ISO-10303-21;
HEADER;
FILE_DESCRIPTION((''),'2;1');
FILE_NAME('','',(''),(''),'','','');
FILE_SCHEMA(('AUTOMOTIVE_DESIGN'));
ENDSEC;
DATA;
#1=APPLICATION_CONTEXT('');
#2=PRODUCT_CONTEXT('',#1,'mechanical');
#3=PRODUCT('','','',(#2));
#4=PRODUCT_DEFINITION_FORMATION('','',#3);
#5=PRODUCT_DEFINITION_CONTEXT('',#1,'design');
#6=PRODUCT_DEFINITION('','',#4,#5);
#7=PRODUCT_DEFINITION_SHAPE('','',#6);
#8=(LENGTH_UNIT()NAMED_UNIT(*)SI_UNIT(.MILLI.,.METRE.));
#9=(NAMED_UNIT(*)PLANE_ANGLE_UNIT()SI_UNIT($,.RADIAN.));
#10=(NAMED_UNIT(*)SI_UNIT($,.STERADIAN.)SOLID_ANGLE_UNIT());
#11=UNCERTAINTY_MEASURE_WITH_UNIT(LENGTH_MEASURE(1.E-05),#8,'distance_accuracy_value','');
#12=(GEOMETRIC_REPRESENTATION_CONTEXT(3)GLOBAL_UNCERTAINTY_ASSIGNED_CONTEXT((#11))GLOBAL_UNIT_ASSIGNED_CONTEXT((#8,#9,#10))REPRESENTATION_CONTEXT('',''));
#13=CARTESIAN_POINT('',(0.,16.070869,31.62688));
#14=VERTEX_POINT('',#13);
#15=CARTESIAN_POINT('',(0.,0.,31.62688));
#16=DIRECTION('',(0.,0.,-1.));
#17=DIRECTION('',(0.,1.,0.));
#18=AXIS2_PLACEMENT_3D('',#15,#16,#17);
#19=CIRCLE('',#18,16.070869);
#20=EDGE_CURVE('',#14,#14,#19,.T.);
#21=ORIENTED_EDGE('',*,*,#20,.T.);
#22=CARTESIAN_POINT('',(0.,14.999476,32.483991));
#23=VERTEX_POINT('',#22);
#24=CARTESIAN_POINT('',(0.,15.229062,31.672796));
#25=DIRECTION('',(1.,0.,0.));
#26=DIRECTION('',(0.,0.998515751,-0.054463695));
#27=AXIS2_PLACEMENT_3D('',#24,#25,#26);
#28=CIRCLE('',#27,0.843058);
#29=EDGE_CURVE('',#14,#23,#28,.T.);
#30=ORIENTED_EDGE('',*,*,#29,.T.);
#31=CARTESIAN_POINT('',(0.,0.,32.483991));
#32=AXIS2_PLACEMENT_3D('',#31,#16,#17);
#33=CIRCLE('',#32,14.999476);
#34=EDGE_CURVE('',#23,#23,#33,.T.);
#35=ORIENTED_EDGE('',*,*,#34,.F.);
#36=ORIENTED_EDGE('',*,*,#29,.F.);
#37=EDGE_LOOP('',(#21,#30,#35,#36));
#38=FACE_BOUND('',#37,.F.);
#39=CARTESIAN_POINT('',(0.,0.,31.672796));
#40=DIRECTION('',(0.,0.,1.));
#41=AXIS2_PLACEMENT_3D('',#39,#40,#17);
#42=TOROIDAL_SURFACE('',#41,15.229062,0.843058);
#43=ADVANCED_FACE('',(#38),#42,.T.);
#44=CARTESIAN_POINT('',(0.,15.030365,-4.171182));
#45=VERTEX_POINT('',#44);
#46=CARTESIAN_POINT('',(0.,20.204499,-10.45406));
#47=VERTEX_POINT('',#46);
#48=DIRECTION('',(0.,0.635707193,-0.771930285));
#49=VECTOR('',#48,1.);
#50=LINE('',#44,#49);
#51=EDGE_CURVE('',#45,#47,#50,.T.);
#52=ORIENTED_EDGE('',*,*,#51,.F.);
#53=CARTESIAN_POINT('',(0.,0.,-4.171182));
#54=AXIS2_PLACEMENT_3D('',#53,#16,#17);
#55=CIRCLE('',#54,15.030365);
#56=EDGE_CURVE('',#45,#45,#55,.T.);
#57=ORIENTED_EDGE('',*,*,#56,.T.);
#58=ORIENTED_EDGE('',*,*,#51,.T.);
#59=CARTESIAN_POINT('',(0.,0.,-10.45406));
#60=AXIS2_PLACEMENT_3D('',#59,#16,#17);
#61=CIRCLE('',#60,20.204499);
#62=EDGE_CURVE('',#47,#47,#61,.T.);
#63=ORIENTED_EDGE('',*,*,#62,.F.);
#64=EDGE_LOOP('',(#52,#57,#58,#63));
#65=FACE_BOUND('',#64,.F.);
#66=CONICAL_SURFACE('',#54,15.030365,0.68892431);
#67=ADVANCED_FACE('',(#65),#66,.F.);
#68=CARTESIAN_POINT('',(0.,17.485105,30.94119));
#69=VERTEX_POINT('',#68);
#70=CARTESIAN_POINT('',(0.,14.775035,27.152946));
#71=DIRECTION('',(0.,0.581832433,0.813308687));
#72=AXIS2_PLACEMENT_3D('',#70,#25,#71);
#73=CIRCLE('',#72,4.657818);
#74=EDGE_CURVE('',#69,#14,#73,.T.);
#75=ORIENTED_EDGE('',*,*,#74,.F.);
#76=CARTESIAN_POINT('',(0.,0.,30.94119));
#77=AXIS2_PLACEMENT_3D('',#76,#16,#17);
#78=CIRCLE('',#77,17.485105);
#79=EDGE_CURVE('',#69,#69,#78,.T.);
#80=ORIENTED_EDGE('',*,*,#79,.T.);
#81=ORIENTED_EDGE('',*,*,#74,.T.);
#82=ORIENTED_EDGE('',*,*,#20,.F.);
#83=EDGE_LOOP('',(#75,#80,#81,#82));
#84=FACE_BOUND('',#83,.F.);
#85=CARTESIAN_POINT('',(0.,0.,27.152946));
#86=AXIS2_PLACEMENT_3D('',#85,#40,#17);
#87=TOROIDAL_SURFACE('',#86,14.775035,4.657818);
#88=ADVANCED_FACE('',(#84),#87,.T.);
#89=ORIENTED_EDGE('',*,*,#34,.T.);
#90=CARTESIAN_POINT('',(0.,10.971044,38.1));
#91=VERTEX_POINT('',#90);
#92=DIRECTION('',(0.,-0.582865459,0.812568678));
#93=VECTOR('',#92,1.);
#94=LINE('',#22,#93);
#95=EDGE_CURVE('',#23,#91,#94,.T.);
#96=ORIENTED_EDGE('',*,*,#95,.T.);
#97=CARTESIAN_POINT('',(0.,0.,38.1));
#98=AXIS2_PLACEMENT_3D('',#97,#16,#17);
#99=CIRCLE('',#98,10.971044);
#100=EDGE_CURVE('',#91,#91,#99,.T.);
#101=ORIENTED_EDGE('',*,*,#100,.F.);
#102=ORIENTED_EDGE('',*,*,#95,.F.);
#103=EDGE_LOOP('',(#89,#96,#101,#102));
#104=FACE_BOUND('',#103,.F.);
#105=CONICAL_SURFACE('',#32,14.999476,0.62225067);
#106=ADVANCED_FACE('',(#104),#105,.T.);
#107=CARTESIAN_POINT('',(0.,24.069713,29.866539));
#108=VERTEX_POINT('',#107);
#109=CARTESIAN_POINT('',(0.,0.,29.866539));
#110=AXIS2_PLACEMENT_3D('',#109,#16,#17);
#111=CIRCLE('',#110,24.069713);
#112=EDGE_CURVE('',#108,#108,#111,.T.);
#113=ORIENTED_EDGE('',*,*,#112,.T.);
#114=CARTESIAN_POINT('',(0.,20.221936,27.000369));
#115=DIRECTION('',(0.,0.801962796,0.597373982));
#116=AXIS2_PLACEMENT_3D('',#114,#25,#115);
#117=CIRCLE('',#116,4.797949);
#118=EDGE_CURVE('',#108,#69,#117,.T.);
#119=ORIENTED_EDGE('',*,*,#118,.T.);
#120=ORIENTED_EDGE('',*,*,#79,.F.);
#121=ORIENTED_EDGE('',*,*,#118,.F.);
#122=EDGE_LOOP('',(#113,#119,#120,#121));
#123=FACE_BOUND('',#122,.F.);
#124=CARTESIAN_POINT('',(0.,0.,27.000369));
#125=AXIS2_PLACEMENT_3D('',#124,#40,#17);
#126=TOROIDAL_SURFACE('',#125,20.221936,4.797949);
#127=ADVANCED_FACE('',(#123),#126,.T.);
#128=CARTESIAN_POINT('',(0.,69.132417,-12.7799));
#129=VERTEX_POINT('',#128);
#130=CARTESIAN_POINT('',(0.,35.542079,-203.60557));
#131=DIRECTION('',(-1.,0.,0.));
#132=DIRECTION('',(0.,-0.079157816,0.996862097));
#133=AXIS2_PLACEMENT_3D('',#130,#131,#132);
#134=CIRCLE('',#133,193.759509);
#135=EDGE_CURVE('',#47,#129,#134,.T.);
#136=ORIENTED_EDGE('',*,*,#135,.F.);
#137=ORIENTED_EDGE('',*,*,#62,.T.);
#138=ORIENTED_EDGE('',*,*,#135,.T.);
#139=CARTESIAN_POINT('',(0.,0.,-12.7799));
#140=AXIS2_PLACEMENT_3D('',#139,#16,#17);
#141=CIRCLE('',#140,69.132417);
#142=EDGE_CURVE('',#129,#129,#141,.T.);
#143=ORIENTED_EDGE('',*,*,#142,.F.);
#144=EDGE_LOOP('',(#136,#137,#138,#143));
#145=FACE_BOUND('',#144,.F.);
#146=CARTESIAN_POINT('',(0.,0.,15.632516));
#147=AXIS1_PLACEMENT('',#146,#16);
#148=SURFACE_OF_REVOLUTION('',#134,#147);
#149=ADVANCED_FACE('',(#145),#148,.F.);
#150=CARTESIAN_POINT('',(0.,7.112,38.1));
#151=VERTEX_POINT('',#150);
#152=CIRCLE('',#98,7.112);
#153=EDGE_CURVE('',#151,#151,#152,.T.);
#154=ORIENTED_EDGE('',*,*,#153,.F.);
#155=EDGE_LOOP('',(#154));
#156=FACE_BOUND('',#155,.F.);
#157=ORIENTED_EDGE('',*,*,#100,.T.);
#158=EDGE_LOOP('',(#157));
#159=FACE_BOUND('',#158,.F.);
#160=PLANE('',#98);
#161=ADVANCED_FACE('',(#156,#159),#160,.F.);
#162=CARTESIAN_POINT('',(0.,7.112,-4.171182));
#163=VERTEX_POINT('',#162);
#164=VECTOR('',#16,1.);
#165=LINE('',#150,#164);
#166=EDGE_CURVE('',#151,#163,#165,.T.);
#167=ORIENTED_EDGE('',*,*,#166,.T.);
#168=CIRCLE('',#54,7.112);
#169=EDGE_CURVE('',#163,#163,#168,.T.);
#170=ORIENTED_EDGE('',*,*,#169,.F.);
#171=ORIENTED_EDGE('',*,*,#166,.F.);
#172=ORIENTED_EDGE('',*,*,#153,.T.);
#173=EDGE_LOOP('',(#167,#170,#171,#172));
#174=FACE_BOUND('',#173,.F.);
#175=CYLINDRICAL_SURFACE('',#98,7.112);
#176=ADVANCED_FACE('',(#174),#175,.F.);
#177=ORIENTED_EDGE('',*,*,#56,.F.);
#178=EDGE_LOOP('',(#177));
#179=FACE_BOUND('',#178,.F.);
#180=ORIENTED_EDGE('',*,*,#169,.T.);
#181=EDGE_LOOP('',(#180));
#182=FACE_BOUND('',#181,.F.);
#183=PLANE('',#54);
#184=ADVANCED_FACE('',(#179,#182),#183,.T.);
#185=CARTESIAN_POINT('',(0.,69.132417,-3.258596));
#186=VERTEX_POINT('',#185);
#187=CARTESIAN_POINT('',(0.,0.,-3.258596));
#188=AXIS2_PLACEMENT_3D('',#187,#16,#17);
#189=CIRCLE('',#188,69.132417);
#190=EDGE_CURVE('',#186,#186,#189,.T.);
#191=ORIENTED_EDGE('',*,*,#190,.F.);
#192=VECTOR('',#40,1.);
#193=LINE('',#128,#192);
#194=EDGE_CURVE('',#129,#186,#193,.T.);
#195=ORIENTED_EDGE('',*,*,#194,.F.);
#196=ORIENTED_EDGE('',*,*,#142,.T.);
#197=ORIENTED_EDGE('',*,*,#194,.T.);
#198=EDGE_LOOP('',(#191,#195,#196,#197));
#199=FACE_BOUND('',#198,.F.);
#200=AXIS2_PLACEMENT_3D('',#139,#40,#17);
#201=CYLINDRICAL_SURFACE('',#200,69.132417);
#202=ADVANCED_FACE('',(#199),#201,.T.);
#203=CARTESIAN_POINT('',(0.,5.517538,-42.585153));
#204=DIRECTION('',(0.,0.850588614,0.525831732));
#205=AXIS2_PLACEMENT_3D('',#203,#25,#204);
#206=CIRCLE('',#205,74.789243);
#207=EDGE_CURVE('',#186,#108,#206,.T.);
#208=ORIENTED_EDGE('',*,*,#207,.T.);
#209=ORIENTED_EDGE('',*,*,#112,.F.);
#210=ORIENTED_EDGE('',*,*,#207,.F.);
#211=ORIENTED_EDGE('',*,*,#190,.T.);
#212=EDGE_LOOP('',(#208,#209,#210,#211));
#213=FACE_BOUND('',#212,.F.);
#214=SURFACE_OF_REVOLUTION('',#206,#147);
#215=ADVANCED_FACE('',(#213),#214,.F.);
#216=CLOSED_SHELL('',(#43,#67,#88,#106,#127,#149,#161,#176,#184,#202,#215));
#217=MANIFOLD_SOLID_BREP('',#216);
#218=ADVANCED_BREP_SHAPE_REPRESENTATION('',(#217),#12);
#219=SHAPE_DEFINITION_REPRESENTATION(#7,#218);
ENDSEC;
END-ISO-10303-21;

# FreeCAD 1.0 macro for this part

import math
import FreeCAD as App
import Part
import Sketcher
Q = App.Units.Quantity

doc = App.newDocument("Part")
params = doc.addObject("Spreadsheet::Sheet", "Params")
for row, (alias, value) in enumerate([
    ("revolution_angle", "360 deg"),
], start=1):
    params.set(f"A{row}", alias)
    params.set(f"B{row}", "=" + value)
    params.setAlias(f"B{row}", alias)

body = doc.addObject("PartDesign::Body", "Body")

# Sketch on YZ plane
sketch1 = body.newObject("Sketcher::SketchObject", "Sketch")
sketch1.AttachmentSupport = (doc.getObject("YZ_Plane"), [""])
sketch1.MapMode = "FlatFace"
sketch1.addGeometry([
    Part.LineSegment(App.Vector(7.1, 38.1, 0), App.Vector(7.1, -4.2, 0)),  # 0
    Part.LineSegment(App.Vector(7.1, -4.2, 0), App.Vector(15, -4.2, 0)),  # 1
    Part.LineSegment(App.Vector(15, -4.2, 0), App.Vector(20.2, -10.5, 0)),  # 2
    Part.ArcOfCircle(Part.Circle(App.Vector(35.5, -203.6, 0), App.Vector(0, 0, 1), 193.8), math.radians(80.02), math.radians(94.54)),  # 3
    Part.LineSegment(App.Vector(69.1, -12.8, 0), App.Vector(69.1, -3.3, 0)),  # 4
    Part.ArcOfCircle(Part.Circle(App.Vector(5.5, -42.6, 0), App.Vector(0, 0, 1), 74.8), math.radians(32), math.radians(76)),  # 5
    Part.ArcOfCircle(Part.Circle(App.Vector(20.2, 27, 0), App.Vector(0, 0, 1), 4.8), math.radians(37), math.radians(125)),  # 6
    Part.ArcOfCircle(Part.Circle(App.Vector(14.8, 27.2, 0), App.Vector(0, 0, 1), 4.7), math.radians(54.42), math.radians(73.85)),  # 7
    Part.ArcOfCircle(Part.Circle(App.Vector(15.2, 31.7, 0), App.Vector(0, 0, 1), 0.8), math.radians(-3), math.radians(106)),  # 8
    Part.LineSegment(App.Vector(15, 32.5, 0), App.Vector(11, 38.1, 0)),  # 9
    Part.LineSegment(App.Vector(11, 38.1, 0), App.Vector(7.1, 38.1, 0)),  # 10
], False)
sketch1.addConstraint([
    Sketcher.Constraint("Coincident", 0, 2, 1, 1),
    Sketcher.Constraint("Coincident", 1, 2, 2, 1),
    Sketcher.Constraint("Coincident", 2, 2, 3, 2),
    Sketcher.Constraint("Coincident", 3, 1, 4, 1),
    Sketcher.Constraint("Coincident", 4, 2, 5, 1),
    Sketcher.Constraint("Coincident", 5, 2, 6, 1),
    Sketcher.Constraint("Coincident", 6, 2, 7, 1),
    Sketcher.Constraint("Coincident", 7, 2, 8, 1),
    Sketcher.Constraint("Coincident", 8, 2, 9, 1),
    Sketcher.Constraint("Coincident", 9, 2, 10, 1),
    Sketcher.Constraint("Coincident", 10, 2, 0, 1),
    Sketcher.Constraint("Vertical", 0),
    Sketcher.Constraint("Horizontal", 1),
    Sketcher.Constraint("Vertical", 4),
    Sketcher.Constraint("Horizontal", 10),
    Sketcher.Constraint("DistanceY", -1, 1, 9, 2, Q("38.1 mm")),
    Sketcher.Constraint("Radius", 3, Q("193.759509 mm")),
    Sketcher.Constraint("Radius", 6, Q("4.797949 mm")),
    Sketcher.Constraint("Radius", 7, Q("4.657818 mm")),
    Sketcher.Constraint("Radius", 8, Q("0.843058 mm")),
    Sketcher.Constraint("DistanceX", -1, 1, 0, 2, Q("7.112 mm")),
    Sketcher.Constraint("Radius", 5, Q("74.789243 mm")),
    Sketcher.Constraint("DistanceX", -1, 1, 2, 2, Q("20.204499 mm")),
    Sketcher.Constraint("DistanceY", 3, 1, -1, 1, Q("12.7799 mm")),
    Sketcher.Constraint("DistanceX", 5, 3, 6, 3, Q("14.704398 mm")),
    Sketcher.Constraint("DistanceX", 7, 3, 6, 3, Q("5.446901 mm")),
    Sketcher.Constraint("DistanceY", 5, 3, 7, 3, Q("69.738099 mm")),
    Sketcher.Constraint("DistanceY", 6, 2, 8, 2, Q("1.542801 mm")),
    Sketcher.Constraint("Distance", 2, Q("8.139178 mm")),
    Sketcher.Constraint("DistanceX", 1, 1, 1, 2, Q("7.918365 mm")),
    Sketcher.Constraint("DistanceX", 10, 2, 10, 1, Q("3.859044 mm")),
    Sketcher.Constraint("DistanceY", 0, 2, 0, 1, Q("42.271182 mm")),
    Sketcher.Constraint("DistanceY", 4, 1, 4, 2, Q("9.521304 mm")),
    Sketcher.Constraint("DistanceX", -1, 1, 3, 3, Q("35.542079 mm")),
    Sketcher.Constraint("DistanceX", -1, 1, 5, 3, Q("5.517538 mm")),
    Sketcher.Constraint("DistanceY", -1, 1, 6, 3, Q("27.000369 mm")),
    Sketcher.Constraint("DistanceX", -1, 1, 7, 2, Q("16.070869 mm")),
    Sketcher.Constraint("DistanceY", 7, 3, 8, 3, Q("4.51985 mm")),
])
revolution = body.newObject("PartDesign::Revolution", "Revolution")
revolution.Profile = sketch1
revolution.ReferenceAxis = (sketch1, ["V_Axis"])
revolution.setExpression("Angle", "Params.revolution_angle")

doc.recompute()
